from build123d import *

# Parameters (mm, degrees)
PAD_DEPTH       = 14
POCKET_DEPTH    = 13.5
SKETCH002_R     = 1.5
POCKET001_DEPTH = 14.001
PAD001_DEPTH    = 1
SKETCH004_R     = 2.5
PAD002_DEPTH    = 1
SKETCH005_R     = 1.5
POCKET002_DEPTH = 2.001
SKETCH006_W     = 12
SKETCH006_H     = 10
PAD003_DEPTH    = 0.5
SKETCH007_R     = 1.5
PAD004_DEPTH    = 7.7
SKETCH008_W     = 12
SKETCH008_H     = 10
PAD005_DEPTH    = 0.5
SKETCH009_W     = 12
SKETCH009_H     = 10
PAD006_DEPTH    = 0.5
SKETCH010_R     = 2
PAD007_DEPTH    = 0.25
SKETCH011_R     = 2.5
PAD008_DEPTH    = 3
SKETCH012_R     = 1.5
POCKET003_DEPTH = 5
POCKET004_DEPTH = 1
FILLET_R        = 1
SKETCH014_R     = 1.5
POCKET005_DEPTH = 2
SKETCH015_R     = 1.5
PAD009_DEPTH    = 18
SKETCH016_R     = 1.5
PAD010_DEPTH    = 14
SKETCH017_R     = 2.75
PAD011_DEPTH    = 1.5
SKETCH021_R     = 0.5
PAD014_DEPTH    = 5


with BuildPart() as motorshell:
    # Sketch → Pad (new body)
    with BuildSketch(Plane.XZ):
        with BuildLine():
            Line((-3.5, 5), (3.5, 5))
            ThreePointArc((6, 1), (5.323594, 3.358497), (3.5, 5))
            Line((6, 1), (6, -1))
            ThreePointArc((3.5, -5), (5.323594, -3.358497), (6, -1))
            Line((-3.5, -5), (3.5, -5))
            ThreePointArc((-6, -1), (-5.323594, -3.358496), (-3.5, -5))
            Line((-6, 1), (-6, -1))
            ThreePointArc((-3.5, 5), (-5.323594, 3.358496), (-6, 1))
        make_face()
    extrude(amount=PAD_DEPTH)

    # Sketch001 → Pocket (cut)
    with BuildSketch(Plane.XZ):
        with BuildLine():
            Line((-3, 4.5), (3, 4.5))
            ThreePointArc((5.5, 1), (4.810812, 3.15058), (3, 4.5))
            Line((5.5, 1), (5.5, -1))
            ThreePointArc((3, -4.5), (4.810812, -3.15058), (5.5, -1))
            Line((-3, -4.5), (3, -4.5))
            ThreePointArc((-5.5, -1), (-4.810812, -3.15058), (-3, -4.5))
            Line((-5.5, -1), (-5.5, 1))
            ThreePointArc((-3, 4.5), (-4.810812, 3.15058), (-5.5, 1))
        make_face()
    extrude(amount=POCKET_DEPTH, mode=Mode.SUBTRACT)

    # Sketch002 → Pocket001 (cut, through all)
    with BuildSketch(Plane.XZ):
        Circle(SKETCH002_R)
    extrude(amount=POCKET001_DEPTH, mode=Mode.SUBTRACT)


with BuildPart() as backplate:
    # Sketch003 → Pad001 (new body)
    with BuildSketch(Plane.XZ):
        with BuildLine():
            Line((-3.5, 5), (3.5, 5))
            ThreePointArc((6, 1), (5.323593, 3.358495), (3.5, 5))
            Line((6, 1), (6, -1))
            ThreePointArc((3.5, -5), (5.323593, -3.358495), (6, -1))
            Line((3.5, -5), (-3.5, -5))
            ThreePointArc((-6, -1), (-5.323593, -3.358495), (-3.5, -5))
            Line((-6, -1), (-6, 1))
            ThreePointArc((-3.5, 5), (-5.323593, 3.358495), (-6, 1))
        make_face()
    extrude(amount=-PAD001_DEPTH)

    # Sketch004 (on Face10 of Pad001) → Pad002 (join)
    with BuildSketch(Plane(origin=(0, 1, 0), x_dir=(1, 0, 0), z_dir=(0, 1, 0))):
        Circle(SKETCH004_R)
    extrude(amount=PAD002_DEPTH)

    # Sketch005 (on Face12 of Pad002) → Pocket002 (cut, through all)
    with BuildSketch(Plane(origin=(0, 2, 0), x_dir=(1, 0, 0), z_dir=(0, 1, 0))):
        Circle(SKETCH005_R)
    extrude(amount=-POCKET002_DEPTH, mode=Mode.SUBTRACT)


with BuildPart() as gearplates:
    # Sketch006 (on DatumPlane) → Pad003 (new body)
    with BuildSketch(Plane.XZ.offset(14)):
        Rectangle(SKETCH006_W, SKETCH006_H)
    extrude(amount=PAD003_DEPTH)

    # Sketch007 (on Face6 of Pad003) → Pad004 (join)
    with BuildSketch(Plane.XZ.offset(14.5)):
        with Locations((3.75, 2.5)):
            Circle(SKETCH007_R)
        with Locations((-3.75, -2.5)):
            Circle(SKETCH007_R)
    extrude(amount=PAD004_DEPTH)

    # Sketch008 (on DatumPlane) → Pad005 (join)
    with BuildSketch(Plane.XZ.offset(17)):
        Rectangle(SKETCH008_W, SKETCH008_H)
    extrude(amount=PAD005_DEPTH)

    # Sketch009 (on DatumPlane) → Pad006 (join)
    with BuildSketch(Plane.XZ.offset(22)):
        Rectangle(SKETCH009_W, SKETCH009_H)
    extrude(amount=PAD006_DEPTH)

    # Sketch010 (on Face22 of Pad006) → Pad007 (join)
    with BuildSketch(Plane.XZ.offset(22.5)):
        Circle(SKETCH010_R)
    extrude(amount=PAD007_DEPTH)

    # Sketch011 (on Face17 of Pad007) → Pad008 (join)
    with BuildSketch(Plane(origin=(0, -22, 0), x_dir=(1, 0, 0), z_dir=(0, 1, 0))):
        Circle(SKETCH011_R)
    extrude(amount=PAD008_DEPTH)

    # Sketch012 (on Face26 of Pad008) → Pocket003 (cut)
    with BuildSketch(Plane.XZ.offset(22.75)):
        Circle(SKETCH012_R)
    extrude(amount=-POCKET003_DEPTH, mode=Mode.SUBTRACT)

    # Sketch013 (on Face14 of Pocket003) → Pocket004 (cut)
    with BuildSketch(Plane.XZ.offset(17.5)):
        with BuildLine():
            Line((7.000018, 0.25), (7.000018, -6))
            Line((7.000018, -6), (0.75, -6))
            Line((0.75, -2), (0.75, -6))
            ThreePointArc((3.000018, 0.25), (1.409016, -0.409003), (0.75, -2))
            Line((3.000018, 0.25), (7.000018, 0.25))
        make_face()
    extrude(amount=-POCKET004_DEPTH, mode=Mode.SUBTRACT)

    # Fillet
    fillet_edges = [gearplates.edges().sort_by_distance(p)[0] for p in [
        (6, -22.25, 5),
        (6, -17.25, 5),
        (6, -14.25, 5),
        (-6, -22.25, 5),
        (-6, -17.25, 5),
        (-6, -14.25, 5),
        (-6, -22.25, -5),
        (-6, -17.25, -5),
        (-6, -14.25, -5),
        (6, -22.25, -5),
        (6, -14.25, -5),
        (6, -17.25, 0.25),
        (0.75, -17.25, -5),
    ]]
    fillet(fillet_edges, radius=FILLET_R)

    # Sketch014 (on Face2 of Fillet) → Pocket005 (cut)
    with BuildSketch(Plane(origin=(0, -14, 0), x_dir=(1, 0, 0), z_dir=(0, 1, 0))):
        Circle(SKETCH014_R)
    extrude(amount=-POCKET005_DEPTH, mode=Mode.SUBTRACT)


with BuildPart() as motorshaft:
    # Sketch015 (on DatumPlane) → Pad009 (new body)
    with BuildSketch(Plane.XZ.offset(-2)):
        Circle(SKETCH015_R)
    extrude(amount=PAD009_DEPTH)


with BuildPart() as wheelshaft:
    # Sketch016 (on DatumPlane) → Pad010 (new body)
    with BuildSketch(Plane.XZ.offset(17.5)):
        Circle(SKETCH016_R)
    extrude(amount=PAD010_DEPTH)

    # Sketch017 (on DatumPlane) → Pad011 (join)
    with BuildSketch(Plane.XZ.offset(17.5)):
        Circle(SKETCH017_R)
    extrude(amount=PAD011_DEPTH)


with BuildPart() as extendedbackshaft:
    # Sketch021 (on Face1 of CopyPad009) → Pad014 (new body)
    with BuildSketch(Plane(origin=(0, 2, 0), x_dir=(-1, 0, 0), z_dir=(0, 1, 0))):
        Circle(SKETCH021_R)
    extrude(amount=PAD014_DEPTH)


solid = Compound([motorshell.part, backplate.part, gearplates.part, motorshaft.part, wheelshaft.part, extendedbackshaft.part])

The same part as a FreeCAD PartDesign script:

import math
import FreeCAD as App
import Part
import Sketcher

V = App.Vector
Q = App.Units.Quantity


def edges_at(feature, points):
    """Names of the edges that pass closest to the given points."""
    edges = feature.Shape.Edges
    near = lambda p: min(range(len(edges)), key=lambda i: edges[i].distToShape(Part.Vertex(*p))[0])
    return sorted({f"Edge{near(p) + 1}" for p in points})


def add_polygon(sketch, points):
    """Adds a closed chain of lines whose ends are joined by coincident constraints."""
    first, n = sketch.GeometryCount, len(points)
    for a, b in zip(points, points[1:] + points[:1]):
        sketch.addGeometry(Part.LineSegment(App.Vector(*a, 0), App.Vector(*b, 0)), False)
    for i in range(n):
        sketch.addConstraint(Sketcher.Constraint("Coincident", first + i, 2, first + (i + 1) % n, 1))

doc = App.newDocument("Part")
body = doc.addObject("PartDesign::Body", "Body")

sketch1 = body.newObject("Sketcher::SketchObject", "Sketch")
sketch1.AttachmentSupport = (doc.getObject("XZ_Plane"), [""])
sketch1.MapMode = "FlatFace"
sketch1.addGeometry([
    Part.LineSegment(V(3.5, 5, 0), V(-3.5, 5, 0)),
    Part.ArcOfCircle(Part.Circle(V(-1.550009, 1.000006, 0), V(0, 0, 1), 4.449991), math.radians(115.989158), math.radians(180.000076)),
    Part.LineSegment(V(-6, 1, 0), V(-6, -1, 0)),
    Part.ArcOfCircle(Part.Circle(V(-1.550009, -1.000006, 0), V(0, 0, 1), 4.449991), math.radians(179.999924), math.radians(244.010842)),
    Part.LineSegment(V(-3.5, -5, 0), V(3.5, -5, 0)),
    Part.ArcOfCircle(Part.Circle(V(1.550012, -1.000008, 0), V(0, 0, 1), 4.449988), math.radians(-64.010866), math.radians(0.0001)),
    Part.LineSegment(V(6, -1, 0), V(6, 1, 0)),
    Part.ArcOfCircle(Part.Circle(V(1.550012, 1.000008, 0), V(0, 0, 1), 4.449988), math.radians(-0.0001), math.radians(64.010866)),
], False)
sketch1.addConstraint([
    Sketcher.Constraint("Coincident", 0, 2, 1, 1),
    Sketcher.Constraint("Tangent", 1, 2, 2, 1),
    Sketcher.Constraint("Tangent", 2, 2, 3, 1),
    Sketcher.Constraint("Coincident", 3, 2, 4, 1),
    Sketcher.Constraint("Coincident", 4, 2, 5, 1),
    Sketcher.Constraint("Tangent", 5, 2, 6, 1),
    Sketcher.Constraint("Tangent", 6, 2, 7, 1),
    Sketcher.Constraint("Coincident", 7, 2, 0, 1),
    Sketcher.Constraint("Horizontal", 0),
    Sketcher.Constraint("Vertical", 2),
    Sketcher.Constraint("Horizontal", 4),
    Sketcher.Constraint("Vertical", 6),
    Sketcher.Constraint("Equal", 1, 3),
    Sketcher.Constraint("Equal", 5, 7),
    Sketcher.Constraint("Symmetric", 1, 3, 5, 3, -1, 1),
    Sketcher.Constraint("Symmetric", 0, 2, 4, 2, -1, 1),
    Sketcher.Constraint("Horizontal", 3, 3, 5, 3),
    Sketcher.Constraint("Horizontal", 1, 3, 7, 3),
    Sketcher.Constraint("DistanceX", 0, 2, 0, 1, Q("7 mm")),
    Sketcher.Constraint("DistanceY", 2, 2, 2, 1, Q("2 mm")),
    Sketcher.Constraint("DistanceY", -1, 1, 0, 2, Q("5 mm")),
    Sketcher.Constraint("DistanceX", 1, 2, -1, 1, Q("6 mm")),
])
pad1 = body.newObject("PartDesign::Pad", "Pad")
pad1.Profile = sketch1
pad1.Length = 14

sketch2 = body.newObject("Sketcher::SketchObject", "Sketch001")
sketch2.AttachmentSupport = (doc.getObject("XZ_Plane"), [""])
sketch2.MapMode = "FlatFace"
sketch2.addGeometry([
    Part.LineSegment(V(3, 4.5, 0), V(-3, 4.5, 0)),
    Part.ArcOfCircle(Part.Circle(V(-1.79999, 0.999993, 0), V(0, 0, 1), 3.70001), math.radians(108.924754), math.radians(179.999891)),
    Part.LineSegment(V(-5.5, 1, 0), V(-5.5, -1, 0)),
    Part.ArcOfCircle(Part.Circle(V(-1.79999, -0.999993, 0), V(0, 0, 1), 3.70001), math.radians(-179.999891), math.radians(-108.924754)),
    Part.LineSegment(V(-3, -4.5, 0), V(3, -4.5, 0)),
    Part.ArcOfCircle(Part.Circle(V(1.79999, -0.999993, 0), V(0, 0, 1), 3.70001), math.radians(-71.075246), math.radians(-0.000109)),
    Part.LineSegment(V(5.5, -1, 0), V(5.5, 1, 0)),
    Part.ArcOfCircle(Part.Circle(V(1.79999, 0.999993, 0), V(0, 0, 1), 3.70001), math.radians(0.000109), math.radians(71.075246)),
], False)
sketch2.addConstraint([
    Sketcher.Constraint("Coincident", 0, 2, 1, 1),
    Sketcher.Constraint("Tangent", 1, 2, 2, 1),
    Sketcher.Constraint("Tangent", 2, 2, 3, 1),
    Sketcher.Constraint("Coincident", 3, 2, 4, 1),
    Sketcher.Constraint("Coincident", 4, 2, 5, 1),
    Sketcher.Constraint("Tangent", 5, 2, 6, 1),
    Sketcher.Constraint("Tangent", 6, 2, 7, 1),
    Sketcher.Constraint("Coincident", 7, 2, 0, 1),
    Sketcher.Constraint("Horizontal", 0),
    Sketcher.Constraint("Vertical", 2),
    Sketcher.Constraint("Horizontal", 4),
    Sketcher.Constraint("Vertical", 6),
    Sketcher.Constraint("Equal", 1, 3),
    Sketcher.Constraint("Equal", 3, 5),
    Sketcher.Constraint("Equal", 5, 7),
    Sketcher.Constraint("Symmetric", 1, 3, 5, 3, -1, 1),
    Sketcher.Constraint("Symmetric", 3, 2, 7, 2, -1, 1),
    Sketcher.Constraint("Horizontal", 3, 3, 5, 3),
    Sketcher.Constraint("DistanceX", 0, 2, 0, 1, Q("6 mm")),
    Sketcher.Constraint("DistanceY", 2, 2, 2, 1, Q("2 mm")),
    Sketcher.Constraint("DistanceY", -1, 1, 0, 2, Q("4.5 mm")),
    Sketcher.Constraint("DistanceX", 1, 2, -1, 1, Q("5.5 mm")),
])
pocket1 = body.newObject("PartDesign::Pocket", "Pocket")
pocket1.Profile = sketch2
pocket1.Length = 13.5
pocket1.Reversed = True

sketch3 = body.newObject("Sketcher::SketchObject", "Sketch002")
sketch3.AttachmentSupport = (doc.getObject("XZ_Plane"), [""])
sketch3.MapMode = "FlatFace"
sketch3.addGeometry(Part.Circle(V(0, 0, 0), V(0, 0, 1), 1.5), False)
sketch3.addConstraint([
    Sketcher.Constraint("Coincident", 0, 3, -1, 1),
    Sketcher.Constraint("Diameter", 0, Q("3 mm")),
])
pocket2 = body.newObject("PartDesign::Pocket", "Pocket001")
pocket2.Profile = sketch3
pocket2.Type = "ThroughAll"
pocket2.Reversed = True
body2 = doc.addObject("PartDesign::Body", "Body001")

sketch4 = body2.newObject("Sketcher::SketchObject", "Sketch003")
sketch4.AttachmentSupport = (doc.getObject("XZ_Plane001"), [""])
sketch4.MapMode = "FlatFace"
sketch4.addGeometry([
    Part.LineSegment(V(3.5, 5, 0), V(-3.5, 5, 0)),
    Part.ArcOfCircle(Part.Circle(V(-1.550002, 1.000001, 0), V(0, 0, 1), 4.449998), math.radians(115.989219), math.radians(180.000014)),
    Part.LineSegment(V(-6, 1, 0), V(-6, -1, 0)),
    Part.ArcOfCircle(Part.Circle(V(-1.550002, -1.000001, 0), V(0, 0, 1), 4.449998), math.radians(179.999986), math.radians(244.010781)),
    Part.LineSegment(V(-3.5, -5, 0), V(3.5, -5, 0)),
    Part.ArcOfCircle(Part.Circle(V(1.550002, -1.000001, 0), V(0, 0, 1), 4.449998), math.radians(-64.010781), math.radians(0.000014)),
    Part.LineSegment(V(6, -1, 0), V(6, 1, 0)),
    Part.ArcOfCircle(Part.Circle(V(1.550002, 1.000001, 0), V(0, 0, 1), 4.449998), math.radians(-0.000014), math.radians(64.010781)),
], False)
sketch4.addConstraint([
    Sketcher.Constraint("Coincident", 0, 2, 1, 1),
    Sketcher.Constraint("Tangent", 1, 2, 2, 1),
    Sketcher.Constraint("Tangent", 2, 2, 3, 1),
    Sketcher.Constraint("Coincident", 3, 2, 4, 1),
    Sketcher.Constraint("Coincident", 4, 2, 5, 1),
    Sketcher.Constraint("Tangent", 5, 2, 6, 1),
    Sketcher.Constraint("Tangent", 6, 2, 7, 1),
    Sketcher.Constraint("Coincident", 7, 2, 0, 1),
    Sketcher.Constraint("Horizontal", 0),
    Sketcher.Constraint("Vertical", 2),
    Sketcher.Constraint("Horizontal", 4),
    Sketcher.Constraint("Vertical", 6),
    Sketcher.Constraint("Equal", 1, 3),
    Sketcher.Constraint("Equal", 3, 5),
    Sketcher.Constraint("Equal", 5, 7),
    Sketcher.Constraint("Symmetric", 1, 3, 5, 3, -1, 1),
    Sketcher.Constraint("Symmetric", 3, 2, 7, 2, -1, 1),
    Sketcher.Constraint("Horizontal", 3, 3, 5, 3),
    Sketcher.Constraint("DistanceX", 0, 2, 0, 1, Q("7 mm")),
    Sketcher.Constraint("DistanceY", 2, 2, 2, 1, Q("2 mm")),
    Sketcher.Constraint("Radius", 1, Q("4.449998 mm")),
    Sketcher.Constraint("DistanceY", -1, 1, 0, 2, Q("5 mm")),
])
pad2 = body2.newObject("PartDesign::Pad", "Pad001")
pad2.Profile = sketch4
pad2.Length = 1
pad2.Reversed = True

sketch5 = body2.newObject("Sketcher::SketchObject", "Sketch004")
sketch5.AttachmentSupport = (doc.getObject("XZ_Plane001"), [""])
sketch5.MapMode = "FlatFace"
sketch5.AttachmentOffset = App.Placement(V(0, 0, -1), App.Rotation())
sketch5.addGeometry(Part.Circle(V(0, 0, 0), V(0, 0, 1), 2.5), False)
sketch5.addConstraint([
    Sketcher.Constraint("Coincident", 0, 3, -1, 1),
    Sketcher.Constraint("Diameter", 0, Q("5 mm")),
])
pad3 = body2.newObject("PartDesign::Pad", "Pad002")
pad3.Profile = sketch5
pad3.Length = 1
pad3.Reversed = True

sketch6 = body2.newObject("Sketcher::SketchObject", "Sketch005")
sketch6.AttachmentSupport = (doc.getObject("XZ_Plane001"), [""])
sketch6.MapMode = "FlatFace"
sketch6.AttachmentOffset = App.Placement(V(0, 0, -2), App.Rotation())
sketch6.addGeometry(Part.Circle(V(0, 0, 0), V(0, 0, 1), 1.5), False)
sketch6.addConstraint([
    Sketcher.Constraint("Coincident", 0, 3, -1, 1),
    Sketcher.Constraint("Diameter", 0, Q("3 mm")),
])
pocket3 = body2.newObject("PartDesign::Pocket", "Pocket002")
pocket3.Profile = sketch6
pocket3.Type = "ThroughAll"
pocket3.Reversed = True
body3 = doc.addObject("PartDesign::Body", "Body002")

sketch7 = body3.newObject("Sketcher::SketchObject", "Sketch006")
sketch7.AttachmentSupport = (doc.getObject("XZ_Plane002"), [""])
sketch7.MapMode = "FlatFace"
sketch7.AttachmentOffset = App.Placement(V(0, 0, 14), App.Rotation())
add_polygon(sketch7, [(-6, 5), (-6, -5), (6, -5), (6, 5)])
sketch7.addConstraint([
    Sketcher.Constraint("Vertical", 0),
    Sketcher.Constraint("Horizontal", 1),
    Sketcher.Constraint("Vertical", 2),
    Sketcher.Constraint("Horizontal", 3),
    Sketcher.Constraint("Symmetric", 0, 2, 2, 2, -1, 1),
    Sketcher.Constraint("DistanceX", 1, 1, 1, 2, Q("12 mm")),
    Sketcher.Constraint("DistanceY", 0, 2, 0, 1, Q("10 mm")),
])
pad4 = body3.newObject("PartDesign::Pad", "Pad003")
pad4.Profile = sketch7
pad4.Length = 0.5

sketch8 = body3.newObject("Sketcher::SketchObject", "Sketch007")
sketch8.AttachmentSupport = (doc.getObject("XZ_Plane002"), [""])
sketch8.MapMode = "FlatFace"
sketch8.AttachmentOffset = App.Placement(V(0, 0, 14.5), App.Rotation())
sketch8.addGeometry([
    Part.Circle(V(3.75, 2.5, 0), V(0, 0, 1), 1.5),
    Part.Circle(V(-3.75, -2.5, 0), V(0, 0, 1), 1.5),
], False)
sketch8.addConstraint([
    Sketcher.Constraint("Equal", 0, 1),
    Sketcher.Constraint("Symmetric", 0, 3, 1, 3, -1, 1),
    Sketcher.Constraint("Diameter", 0, Q("3 mm")),
    Sketcher.Constraint("DistanceY", 1, 3, 0, 3, Q("5 mm")),
    Sketcher.Constraint("DistanceX", 1, 3, 0, 3, Q("7.5 mm")),
])
pad5 = body3.newObject("PartDesign::Pad", "Pad004")
pad5.Profile = sketch8
pad5.Length = 7.7

sketch9 = body3.newObject("Sketcher::SketchObject", "Sketch008")
sketch9.AttachmentSupport = (doc.getObject("XZ_Plane002"), [""])
sketch9.MapMode = "FlatFace"
sketch9.AttachmentOffset = App.Placement(V(0, 0, 17), App.Rotation())
add_polygon(sketch9, [(-6, 5), (-6, -5), (6, -5), (6, 5)])
sketch9.addConstraint([
    Sketcher.Constraint("Vertical", 0),
    Sketcher.Constraint("Horizontal", 1),
    Sketcher.Constraint("Vertical", 2),
    Sketcher.Constraint("Horizontal", 3),
    Sketcher.Constraint("Symmetric", 0, 2, 2, 2, -1, 1),
    Sketcher.Constraint("DistanceX", 1, 1, 1, 2, Q("12 mm")),
    Sketcher.Constraint("DistanceY", 0, 2, 0, 1, Q("10 mm")),
])
pad6 = body3.newObject("PartDesign::Pad", "Pad005")
pad6.Profile = sketch9
pad6.Length = 0.5

sketch10 = body3.newObject("Sketcher::SketchObject", "Sketch009")
sketch10.AttachmentSupport = (doc.getObject("XZ_Plane002"), [""])
sketch10.MapMode = "FlatFace"
sketch10.AttachmentOffset = App.Placement(V(0, 0, 22), App.Rotation())
add_polygon(sketch10, [(-6, 5), (-6, -5), (6, -5), (6, 5)])
sketch10.addConstraint([
    Sketcher.Constraint("Vertical", 0),
    Sketcher.Constraint("Horizontal", 1),
    Sketcher.Constraint("Vertical", 2),
    Sketcher.Constraint("Horizontal", 3),
    Sketcher.Constraint("Symmetric", 0, 2, 2, 2, -1, 1),
    Sketcher.Constraint("DistanceX", 1, 1, 1, 2, Q("12 mm")),
    Sketcher.Constraint("DistanceY", 0, 2, 0, 1, Q("10 mm")),
])
pad7 = body3.newObject("PartDesign::Pad", "Pad006")
pad7.Profile = sketch10
pad7.Length = 0.5

sketch11 = body3.newObject("Sketcher::SketchObject", "Sketch010")
sketch11.AttachmentSupport = (doc.getObject("XZ_Plane002"), [""])
sketch11.MapMode = "FlatFace"
sketch11.AttachmentOffset = App.Placement(V(0, 0, 22.5), App.Rotation())
sketch11.addGeometry(Part.Circle(V(0, 0, 0), V(0, 0, 1), 2), False)
sketch11.addConstraint([
    Sketcher.Constraint("Coincident", 0, 3, -1, 1),
    Sketcher.Constraint("Diameter", 0, Q("4 mm")),
])
pad8 = body3.newObject("PartDesign::Pad", "Pad007")
pad8.Profile = sketch11
pad8.Length = 0.25

sketch12 = body3.newObject("Sketcher::SketchObject", "Sketch011")
sketch12.AttachmentSupport = (doc.getObject("XZ_Plane002"), [""])
sketch12.MapMode = "FlatFace"
sketch12.AttachmentOffset = App.Placement(V(0, 0, 22), App.Rotation())
sketch12.addGeometry(Part.Circle(V(0, 0, 0), V(0, 0, 1), 2.5), False)
sketch12.addConstraint([
    Sketcher.Constraint("Coincident", 0, 3, -1, 1),
    Sketcher.Constraint("Diameter", 0, Q("5 mm")),
])
pad9 = body3.newObject("PartDesign::Pad", "Pad008")
pad9.Profile = sketch12
pad9.Length = 3
pad9.Reversed = True

sketch13 = body3.newObject("Sketcher::SketchObject", "Sketch012")
sketch13.AttachmentSupport = (doc.getObject("XZ_Plane002"), [""])
sketch13.MapMode = "FlatFace"
sketch13.AttachmentOffset = App.Placement(V(0, 0, 22.75), App.Rotation())
sketch13.addGeometry(Part.Circle(V(0, 0, 0), V(0, 0, 1), 1.5), False)
sketch13.addConstraint([
    Sketcher.Constraint("Coincident", 0, 3, -1, 1),
    Sketcher.Constraint("Diameter", 0, Q("3 mm")),
])
pocket4 = body3.newObject("PartDesign::Pocket", "Pocket003")
pocket4.Profile = sketch13
pocket4.Length = 5

sketch14 = body3.newObject("Sketcher::SketchObject", "Sketch013")
sketch14.AttachmentSupport = (doc.getObject("XZ_Plane002"), [""])
sketch14.MapMode = "FlatFace"
sketch14.AttachmentOffset = App.Placement(V(0, 0, 17.5), App.Rotation())
sketch14.addGeometry([
    Part.LineSegment(V(7.000018, -6, 0), V(7.000018, 0.25, 0)),
    Part.LineSegment(V(7.000018, 0.25, 0), V(3.000018, 0.25, 0)),
    Part.ArcOfCircle(Part.Circle(V(2.999999, -1.999999, 0), V(0, 0, 1), 2.249999), math.radians(89.999521), math.radians(180.000021)),
    Part.LineSegment(V(0.75, -2, 0), V(0.75, -6, 0)),
    Part.LineSegment(V(0.75, -6, 0), V(7.000018, -6, 0)),
], False)
sketch14.addConstraint([
    Sketcher.Constraint("Coincident", 0, 2, 1, 1),
    Sketcher.Constraint("Coincident", 1, 2, 2, 1),
    Sketcher.Constraint("Tangent", 2, 2, 3, 1),
    Sketcher.Constraint("Coincident", 3, 2, 4, 1),
    Sketcher.Constraint("Coincident", 4, 2, 0, 1),
    Sketcher.Constraint("Vertical", 0),
    Sketcher.Constraint("Horizontal", 1),
    Sketcher.Constraint("Vertical", 3),
    Sketcher.Constraint("Horizontal", 4),
    Sketcher.Constraint("Equal", 1, 3),
    Sketcher.Constraint("DistanceX", 1, 2, 1, 1, Q("4 mm")),
    Sketcher.Constraint("Radius", 2, Q("2.249999 mm")),
    Sketcher.Constraint("DistanceX", -1, 1, 2, 3, Q("2.999999 mm")),
    Sketcher.Constraint("DistanceY", 2, 3, -1, 1, Q("1.999999 mm")),
    Sketcher.Constraint("DistanceX", 4, 1, 4, 2, Q("6.250018 mm")),
])
pocket5 = body3.newObject("PartDesign::Pocket", "Pocket004")
pocket5.Profile = sketch14
pocket5.Length = 1
doc.recompute()

fillet = body3.newObject("PartDesign::Fillet", "Fillet")
fillet.Base = (pocket5, edges_at(pocket5, [
    (6, -22.25, 5),
    (6, -17.25, 5),
    (6, -14.25, 5),
    (-6, -22.25, 5),
    (-6, -17.25, 5),
    (-6, -14.25, 5),
    (-6, -22.25, -5),
    (-6, -17.25, -5),
    (-6, -14.25, -5),
    (6, -22.25, -5),
    (6, -14.25, -5),
    (6, -17.25, 0.25),
    (0.75, -17.25, -5),
]))
fillet.Radius = 1

sketch15 = body3.newObject("Sketcher::SketchObject", "Sketch014")
sketch15.AttachmentSupport = (doc.getObject("XZ_Plane002"), [""])
sketch15.MapMode = "FlatFace"
sketch15.AttachmentOffset = App.Placement(V(0, 0, 14), App.Rotation())
sketch15.addGeometry(Part.Circle(V(0, 0, 0), V(0, 0, 1), 1.5), False)
sketch15.addConstraint([
    Sketcher.Constraint("Coincident", 0, 3, -1, 1),
    Sketcher.Constraint("Diameter", 0, Q("3 mm")),
])
pocket6 = body3.newObject("PartDesign::Pocket", "Pocket005")
pocket6.Profile = sketch15
pocket6.Length = 2
pocket6.Reversed = True
body4 = doc.addObject("PartDesign::Body", "Body003")

sketch16 = body4.newObject("Sketcher::SketchObject", "Sketch015")
sketch16.AttachmentSupport = (doc.getObject("XZ_Plane003"), [""])
sketch16.MapMode = "FlatFace"
sketch16.AttachmentOffset = App.Placement(V(0, 0, -2), App.Rotation())
sketch16.addGeometry(Part.Circle(V(0, 0, 0), V(0, 0, 1), 1.5), False)
sketch16.addConstraint([
    Sketcher.Constraint("Coincident", 0, 3, -1, 1),
    Sketcher.Constraint("Diameter", 0, Q("3 mm")),
])
pad10 = body4.newObject("PartDesign::Pad", "Pad009")
pad10.Profile = sketch16
pad10.Length = 18
body5 = doc.addObject("PartDesign::Body", "Body004")

sketch17 = body5.newObject("Sketcher::SketchObject", "Sketch016")
sketch17.AttachmentSupport = (doc.getObject("XZ_Plane004"), [""])
sketch17.MapMode = "FlatFace"
sketch17.AttachmentOffset = App.Placement(V(0, 0, 17.5), App.Rotation())
sketch17.addGeometry(Part.Circle(V(0, 0, 0), V(0, 0, 1), 1.5), False)
sketch17.addConstraint([
    Sketcher.Constraint("Coincident", 0, 3, -1, 1),
    Sketcher.Constraint("Diameter", 0, Q("3 mm")),
])
pad11 = body5.newObject("PartDesign::Pad", "Pad010")
pad11.Profile = sketch17
pad11.Length = 14

sketch18 = body5.newObject("Sketcher::SketchObject", "Sketch017")
sketch18.AttachmentSupport = (doc.getObject("XZ_Plane004"), [""])
sketch18.MapMode = "FlatFace"
sketch18.AttachmentOffset = App.Placement(V(0, 0, 17.5), App.Rotation())
sketch18.addGeometry(Part.Circle(V(0, 0, 0), V(0, 0, 1), 2.75), False)
sketch18.addConstraint([
    Sketcher.Constraint("Coincident", 0, 3, -1, 1),
    Sketcher.Constraint("Diameter", 0, Q("5.5 mm")),
])
pad12 = body5.newObject("PartDesign::Pad", "Pad011")
pad12.Profile = sketch18
pad12.Length = 1.5
body6 = doc.addObject("PartDesign::Body", "Body005")

sketch19 = body6.newObject("Sketcher::SketchObject", "Sketch018")
sketch19.AttachmentSupport = (doc.getObject("XZ_Plane005"), [""])
sketch19.MapMode = "FlatFace"
sketch19.AttachmentOffset = App.Placement(V(0, 0, -2), App.Rotation())
sketch19.addGeometry(Part.Circle(V(0, 0, 0), V(0, 0, 1), 0.5), False)
sketch19.addConstraint([
    Sketcher.Constraint("Coincident", 0, 3, -1, 1),
    Sketcher.Constraint("Diameter", 0, Q("1 mm")),
])
pad13 = body6.newObject("PartDesign::Pad", "Pad012")
pad13.Profile = sketch19
pad13.Length = 5
pad13.Reversed = True

doc.recompute()
